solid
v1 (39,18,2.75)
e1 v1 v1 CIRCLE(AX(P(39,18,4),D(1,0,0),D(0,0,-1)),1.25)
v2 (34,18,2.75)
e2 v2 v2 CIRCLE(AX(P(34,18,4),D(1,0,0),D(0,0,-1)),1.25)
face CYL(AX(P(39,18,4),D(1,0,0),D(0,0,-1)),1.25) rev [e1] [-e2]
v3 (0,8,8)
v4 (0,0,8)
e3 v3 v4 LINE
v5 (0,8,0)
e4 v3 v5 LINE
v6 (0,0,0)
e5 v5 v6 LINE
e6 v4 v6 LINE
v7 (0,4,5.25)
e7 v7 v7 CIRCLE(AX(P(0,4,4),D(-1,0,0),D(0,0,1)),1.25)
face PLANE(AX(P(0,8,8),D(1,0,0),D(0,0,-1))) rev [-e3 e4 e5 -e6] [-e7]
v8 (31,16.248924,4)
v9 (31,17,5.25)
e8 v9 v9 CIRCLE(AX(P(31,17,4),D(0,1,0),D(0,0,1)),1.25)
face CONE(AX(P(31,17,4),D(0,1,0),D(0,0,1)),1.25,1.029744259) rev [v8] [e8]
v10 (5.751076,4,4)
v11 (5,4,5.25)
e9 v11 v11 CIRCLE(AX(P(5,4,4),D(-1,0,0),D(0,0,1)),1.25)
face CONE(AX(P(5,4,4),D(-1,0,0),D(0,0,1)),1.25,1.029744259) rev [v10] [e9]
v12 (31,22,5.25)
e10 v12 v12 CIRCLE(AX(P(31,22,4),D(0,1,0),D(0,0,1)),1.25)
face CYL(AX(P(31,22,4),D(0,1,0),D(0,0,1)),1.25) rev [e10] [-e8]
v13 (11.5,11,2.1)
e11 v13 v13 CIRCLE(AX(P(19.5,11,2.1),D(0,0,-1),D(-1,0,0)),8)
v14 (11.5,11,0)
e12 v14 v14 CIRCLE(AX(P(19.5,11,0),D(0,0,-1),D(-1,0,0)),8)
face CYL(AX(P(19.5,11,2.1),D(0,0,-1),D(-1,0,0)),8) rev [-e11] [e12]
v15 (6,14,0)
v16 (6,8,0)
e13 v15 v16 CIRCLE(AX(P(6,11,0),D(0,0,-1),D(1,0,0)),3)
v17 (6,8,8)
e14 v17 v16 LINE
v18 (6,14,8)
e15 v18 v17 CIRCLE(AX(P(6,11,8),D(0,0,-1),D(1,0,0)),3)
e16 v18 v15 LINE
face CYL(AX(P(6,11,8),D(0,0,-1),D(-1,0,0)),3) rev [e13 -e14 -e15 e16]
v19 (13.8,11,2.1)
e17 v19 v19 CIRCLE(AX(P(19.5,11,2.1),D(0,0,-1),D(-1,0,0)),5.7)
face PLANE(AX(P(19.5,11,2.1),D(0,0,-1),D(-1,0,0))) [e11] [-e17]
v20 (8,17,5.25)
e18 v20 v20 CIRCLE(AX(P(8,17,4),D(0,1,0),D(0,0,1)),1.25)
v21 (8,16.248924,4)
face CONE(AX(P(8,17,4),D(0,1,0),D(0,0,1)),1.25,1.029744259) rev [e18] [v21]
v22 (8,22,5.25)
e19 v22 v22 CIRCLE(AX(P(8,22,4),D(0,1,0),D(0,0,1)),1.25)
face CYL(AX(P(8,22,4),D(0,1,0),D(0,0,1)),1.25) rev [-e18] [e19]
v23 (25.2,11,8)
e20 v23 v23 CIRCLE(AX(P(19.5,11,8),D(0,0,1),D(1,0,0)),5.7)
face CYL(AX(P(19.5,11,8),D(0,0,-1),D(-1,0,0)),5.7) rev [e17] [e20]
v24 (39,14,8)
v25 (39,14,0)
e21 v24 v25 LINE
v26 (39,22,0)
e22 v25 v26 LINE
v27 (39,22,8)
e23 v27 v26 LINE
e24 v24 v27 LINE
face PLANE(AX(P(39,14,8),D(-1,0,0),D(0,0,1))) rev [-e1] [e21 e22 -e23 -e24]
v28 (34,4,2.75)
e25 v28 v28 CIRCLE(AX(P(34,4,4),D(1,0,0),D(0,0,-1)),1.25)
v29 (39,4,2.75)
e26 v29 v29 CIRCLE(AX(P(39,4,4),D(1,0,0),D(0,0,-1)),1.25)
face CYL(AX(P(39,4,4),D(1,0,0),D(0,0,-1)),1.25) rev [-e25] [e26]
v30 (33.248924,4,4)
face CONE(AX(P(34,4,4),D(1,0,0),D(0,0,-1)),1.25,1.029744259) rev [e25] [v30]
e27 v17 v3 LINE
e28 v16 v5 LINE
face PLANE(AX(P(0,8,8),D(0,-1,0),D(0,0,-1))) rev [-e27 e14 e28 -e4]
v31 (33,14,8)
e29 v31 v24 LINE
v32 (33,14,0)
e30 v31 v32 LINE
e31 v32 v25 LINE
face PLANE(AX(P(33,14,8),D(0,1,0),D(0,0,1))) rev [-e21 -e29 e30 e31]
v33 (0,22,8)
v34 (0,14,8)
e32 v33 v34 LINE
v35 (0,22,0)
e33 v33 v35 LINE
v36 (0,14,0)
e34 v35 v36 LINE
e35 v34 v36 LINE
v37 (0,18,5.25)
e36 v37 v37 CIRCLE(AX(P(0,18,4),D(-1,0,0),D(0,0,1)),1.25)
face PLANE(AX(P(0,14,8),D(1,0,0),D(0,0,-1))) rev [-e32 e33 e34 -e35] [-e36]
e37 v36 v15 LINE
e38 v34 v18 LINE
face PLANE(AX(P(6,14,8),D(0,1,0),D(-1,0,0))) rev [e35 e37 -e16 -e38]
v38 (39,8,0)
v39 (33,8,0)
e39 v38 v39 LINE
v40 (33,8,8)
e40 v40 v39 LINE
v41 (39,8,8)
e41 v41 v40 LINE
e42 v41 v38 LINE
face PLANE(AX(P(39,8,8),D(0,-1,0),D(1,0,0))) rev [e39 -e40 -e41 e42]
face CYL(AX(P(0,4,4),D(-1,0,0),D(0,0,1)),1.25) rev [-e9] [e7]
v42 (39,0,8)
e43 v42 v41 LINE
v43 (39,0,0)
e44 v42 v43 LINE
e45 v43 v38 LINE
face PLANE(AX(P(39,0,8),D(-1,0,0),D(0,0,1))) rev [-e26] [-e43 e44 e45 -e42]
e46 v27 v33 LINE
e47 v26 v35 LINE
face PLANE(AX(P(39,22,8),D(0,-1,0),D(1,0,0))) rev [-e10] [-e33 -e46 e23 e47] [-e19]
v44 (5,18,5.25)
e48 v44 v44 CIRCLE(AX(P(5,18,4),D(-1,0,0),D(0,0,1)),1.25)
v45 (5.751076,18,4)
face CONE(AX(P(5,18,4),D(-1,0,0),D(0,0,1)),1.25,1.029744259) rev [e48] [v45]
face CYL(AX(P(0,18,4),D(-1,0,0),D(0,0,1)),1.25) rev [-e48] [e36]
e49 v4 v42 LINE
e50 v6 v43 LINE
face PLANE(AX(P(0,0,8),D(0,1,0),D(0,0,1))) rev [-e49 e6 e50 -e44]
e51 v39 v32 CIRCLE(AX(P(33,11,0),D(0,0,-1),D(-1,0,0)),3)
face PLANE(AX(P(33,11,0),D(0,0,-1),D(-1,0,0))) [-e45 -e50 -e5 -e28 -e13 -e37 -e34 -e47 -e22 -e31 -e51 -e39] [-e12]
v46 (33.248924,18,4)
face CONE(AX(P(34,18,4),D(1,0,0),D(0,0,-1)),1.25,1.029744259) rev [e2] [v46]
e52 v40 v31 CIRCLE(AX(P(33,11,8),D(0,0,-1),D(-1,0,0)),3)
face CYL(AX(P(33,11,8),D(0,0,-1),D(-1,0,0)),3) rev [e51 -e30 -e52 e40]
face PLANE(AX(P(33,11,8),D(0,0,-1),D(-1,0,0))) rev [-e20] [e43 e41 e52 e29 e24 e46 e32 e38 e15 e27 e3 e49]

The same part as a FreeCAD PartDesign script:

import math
import FreeCAD as App
import Part
import Sketcher
Q = App.Units.Quantity

doc = App.newDocument("Part")
params = doc.addObject("Spreadsheet::Sheet", "Params")
for row, (alias, value) in enumerate([
    ("sketch1_radius", "3 mm"),
    ("sketch1_diameter", "11.4 mm"),
    ("sketch1_width", "39 mm"),
    ("sketch1_width2", "6 mm"),
    ("sketch1_height", "8 mm"),
    ("pad1_length", "8 mm"),
    ("sketch2_diameter", "2.5 mm"),
    ("hole_diameter", "2.5 mm"),
    ("hole_depth", "5 mm"),
    ("sketch3_diameter", "2.5 mm"),
    ("hole2_diameter", "2.5 mm"),
    ("hole2_depth", "5 mm"),
    ("sketch4_diameter", "2.5 mm"),
    ("hole3_diameter", "2.5 mm"),
    ("hole3_depth", "5 mm"),
    ("sketch5_diameter", "16 mm"),
    ("pocket1_length", "2.1 mm"),
], start=1):
    params.set(f"A{row}", alias)
    params.set(f"B{row}", "=" + value)
    params.setAlias(f"B{row}", alias)

body = doc.addObject("PartDesign::Body", "Body")

# Sketch on XY plane
sketch1 = body.newObject("Sketcher::SketchObject", "Sketch")
sketch1.AttachmentSupport = (doc.getObject("XY_Plane"), [""])
sketch1.MapMode = "FlatFace"
sketch1.addGeometry([
    Part.LineSegment(App.Vector(0, 0, 0), App.Vector(39, 0, 0)),  # 0
    Part.LineSegment(App.Vector(39, 0, 0), App.Vector(39, 8, 0)),  # 1
    Part.LineSegment(App.Vector(39, 8, 0), App.Vector(33, 8, 0)),  # 2
    Part.ArcOfCircle(Part.Circle(App.Vector(33, 11, 0), App.Vector(0, 0, 1), 3), math.radians(90), math.radians(270)),  # 3
    Part.LineSegment(App.Vector(33, 14, 0), App.Vector(39, 14, 0)),  # 4
    Part.LineSegment(App.Vector(39, 14, 0), App.Vector(39, 22, 0)),  # 5
    Part.LineSegment(App.Vector(39, 22, 0), App.Vector(0, 22, 0)),  # 6
    Part.LineSegment(App.Vector(0, 22, 0), App.Vector(0, 14, 0)),  # 7
    Part.LineSegment(App.Vector(0, 14, 0), App.Vector(6, 14, 0)),  # 8
    Part.ArcOfCircle(Part.Circle(App.Vector(6, 11, 0), App.Vector(0, 0, 1), 3), math.radians(-90), math.radians(90)),  # 9
    Part.LineSegment(App.Vector(6, 8, 0), App.Vector(0, 8, 0)),  # 10
    Part.LineSegment(App.Vector(0, 8, 0), App.Vector(0, 0, 0)),  # 11
    Part.Circle(App.Vector(19.5, 11, 0), App.Vector(0, 0, 1), 5.7),  # 12
], False)
sketch1.addConstraint([
    Sketcher.Constraint("Coincident", 0, 2, 1, 1),
    Sketcher.Constraint("Coincident", 1, 2, 2, 1),
    Sketcher.Constraint("Tangent", 2, 2, 3, 2),
    Sketcher.Constraint("Tangent", 3, 1, 4, 1),
    Sketcher.Constraint("Coincident", 4, 2, 5, 1),
    Sketcher.Constraint("Coincident", 5, 2, 6, 1),
    Sketcher.Constraint("Coincident", 6, 2, 7, 1),
    Sketcher.Constraint("Coincident", 7, 2, 8, 1),
    Sketcher.Constraint("Tangent", 8, 2, 9, 2),
    Sketcher.Constraint("Tangent", 9, 1, 10, 1),
    Sketcher.Constraint("Coincident", 10, 2, 11, 1),
    Sketcher.Constraint("Coincident", 11, 2, 0, 1),
    Sketcher.Constraint("Horizontal", 0),
    Sketcher.Constraint("Vertical", 1),
    Sketcher.Constraint("Horizontal", 2),
    Sketcher.Constraint("Horizontal", 4),
    Sketcher.Constraint("Vertical", 5),
    Sketcher.Constraint("Horizontal", 6),
    Sketcher.Constraint("Vertical", 7),
    Sketcher.Constraint("Horizontal", 8),
    Sketcher.Constraint("Horizontal", 10),
    Sketcher.Constraint("Vertical", 11),
    Sketcher.Constraint("Coincident", 11, 2, -1, 1),
    Sketcher.Constraint("Equal", 3, 9),
    Sketcher.Constraint("PointOnObject", 6, 2, -2),
    Sketcher.Constraint("Horizontal", 3, 3, 9, 3),
    Sketcher.Constraint("Horizontal", 9, 3, 12, 3),
    Sketcher.Constraint("Vertical", 1, 2, 4, 2),
    Sketcher.Constraint("Equal", 4, 8),
    Sketcher.Constraint("Equal", 1, 5),
    Sketcher.Constraint("Radius", 3, Q("3 mm")),
    Sketcher.Constraint("Diameter", 12, Q("11.4 mm")),
    Sketcher.Constraint("DistanceX", 0, 1, 0, 2, Q("39 mm")),
    Sketcher.Constraint("DistanceX", 2, 2, 2, 1, Q("6 mm")),
    Sketcher.Constraint("DistanceY", 1, 1, 1, 2, Q("8 mm")),
    Sketcher.Constraint("DistanceX", -1, 1, 12, 3, Q("19.5 mm")),
])
sketch1.setExpression("Constraints[30]", "Params.sketch1_radius")
sketch1.setExpression("Constraints[31]", "Params.sketch1_diameter")
sketch1.setExpression("Constraints[32]", "Params.sketch1_width")
sketch1.setExpression("Constraints[33]", "Params.sketch1_width2")
sketch1.setExpression("Constraints[34]", "Params.sketch1_height")
pad1 = body.newObject("PartDesign::Pad", "Pad")
pad1.Profile = sketch1
pad1.setExpression("Length", "Params.pad1_length")

# Sketch on YZ plane
sketch2 = body.newObject("Sketcher::SketchObject", "Sketch001")
sketch2.AttachmentSupport = (doc.getObject("YZ_Plane"), [""])
sketch2.MapMode = "FlatFace"
sketch2.AttachmentOffset = App.Placement(App.Vector(0, 0, 39), App.Rotation())
sketch2.addGeometry([
    Part.Circle(App.Vector(18, 4, 0), App.Vector(0, 0, 1), 1.2),
    Part.Circle(App.Vector(4, 4, 0), App.Vector(0, 0, 1), 1.2),
], False)
sketch2.addConstraint([
    Sketcher.Constraint("Equal", 0, 1),
    Sketcher.Constraint("Horizontal", 0, 3, 1, 3),
    Sketcher.Constraint("Diameter", 0, Q("2.5 mm")),
    Sketcher.Constraint("DistanceX", -1, 1, 0, 3, Q("18 mm")),
    Sketcher.Constraint("DistanceY", -1, 1, 0, 3, Q("4 mm")),
    Sketcher.Constraint("DistanceX", -1, 1, 1, 3, Q("4 mm")),
])
sketch2.setExpression("Constraints[2]", "Params.sketch2_diameter")
doc.recompute()
hole = body.newObject("PartDesign::Hole", "Hole")
hole.Profile = sketch2
hole.ThreadType = "None"
hole.setExpression("Diameter", "Params.hole_diameter")
hole.DepthType = "Dimension"
hole.setExpression("Depth", "Params.hole_depth")
hole.DrillPoint = "Angled"
hole.DrillPointAngle = 118

# Sketch on YZ plane
sketch3 = body.newObject("Sketcher::SketchObject", "Sketch002")
sketch3.AttachmentSupport = (doc.getObject("YZ_Plane"), [""])
sketch3.MapMode = "FlatFace"
sketch3.addGeometry([
    Part.Circle(App.Vector(4, 4, 0), App.Vector(0, 0, 1), 1.2),
    Part.Circle(App.Vector(18, 4, 0), App.Vector(0, 0, 1), 1.2),
], False)
sketch3.addConstraint([
    Sketcher.Constraint("Equal", 0, 1),
    Sketcher.Constraint("Horizontal", 0, 3, 1, 3),
    Sketcher.Constraint("Diameter", 0, Q("2.5 mm")),
    Sketcher.Constraint("DistanceX", -1, 1, 0, 3, Q("4 mm")),
    Sketcher.Constraint("DistanceY", -1, 1, 0, 3, Q("4 mm")),
    Sketcher.Constraint("DistanceX", -1, 1, 1, 3, Q("18 mm")),
])
sketch3.setExpression("Constraints[2]", "Params.sketch3_diameter")
doc.recompute()
hole2 = body.newObject("PartDesign::Hole", "Hole001")
hole2.Profile = sketch3
hole2.ThreadType = "None"
hole2.setExpression("Diameter", "Params.hole2_diameter")
hole2.DepthType = "Dimension"
hole2.setExpression("Depth", "Params.hole2_depth")
hole2.DrillPoint = "Angled"
hole2.DrillPointAngle = 118
hole2.Reversed = True

# Sketch on XZ plane
sketch4 = body.newObject("Sketcher::SketchObject", "Sketch003")
sketch4.AttachmentSupport = (doc.getObject("XZ_Plane"), [""])
sketch4.MapMode = "FlatFace"
sketch4.AttachmentOffset = App.Placement(App.Vector(0, 0, -22), App.Rotation())
sketch4.addGeometry([
    Part.Circle(App.Vector(31, 4, 0), App.Vector(0, 0, 1), 1.2),
    Part.Circle(App.Vector(8, 4, 0), App.Vector(0, 0, 1), 1.2),
], False)
sketch4.addConstraint([
    Sketcher.Constraint("Equal", 0, 1),
    Sketcher.Constraint("Horizontal", 0, 3, 1, 3),
    Sketcher.Constraint("Diameter", 0, Q("2.5 mm")),
    Sketcher.Constraint("DistanceX", -1, 1, 0, 3, Q("31 mm")),
    Sketcher.Constraint("DistanceY", -1, 1, 0, 3, Q("4 mm")),
    Sketcher.Constraint("DistanceX", -1, 1, 1, 3, Q("8 mm")),
])
sketch4.setExpression("Constraints[2]", "Params.sketch4_diameter")
doc.recompute()
hole3 = body.newObject("PartDesign::Hole", "Hole002")
hole3.Profile = sketch4
hole3.ThreadType = "None"
hole3.setExpression("Diameter", "Params.hole3_diameter")
hole3.DepthType = "Dimension"
hole3.setExpression("Depth", "Params.hole3_depth")
hole3.DrillPoint = "Angled"
hole3.DrillPointAngle = 118
hole3.Reversed = True

# Sketch on XY plane
sketch5 = body.newObject("Sketcher::SketchObject", "Sketch004")
sketch5.AttachmentSupport = (doc.getObject("XY_Plane"), [""])
sketch5.MapMode = "FlatFace"
sketch5.addGeometry(Part.Circle(App.Vector(20, 11, 0), App.Vector(0, 0, 1), 8), False)
sketch5.addConstraint([
    Sketcher.Constraint("Diameter", 0, Q("16 mm")),
    Sketcher.Constraint("DistanceY", -1, 1, 0, 3, Q("11 mm")),
    Sketcher.Constraint("DistanceX", -1, 1, 0, 3, Q("19.5 mm")),
])
sketch5.setExpression("Constraints[0]", "Params.sketch5_diameter")
pocket1 = body.newObject("PartDesign::Pocket", "Pocket")
pocket1.Profile = sketch5
pocket1.setExpression("Length", "Params.pocket1_length")
pocket1.Reversed = True

doc.recompute()
